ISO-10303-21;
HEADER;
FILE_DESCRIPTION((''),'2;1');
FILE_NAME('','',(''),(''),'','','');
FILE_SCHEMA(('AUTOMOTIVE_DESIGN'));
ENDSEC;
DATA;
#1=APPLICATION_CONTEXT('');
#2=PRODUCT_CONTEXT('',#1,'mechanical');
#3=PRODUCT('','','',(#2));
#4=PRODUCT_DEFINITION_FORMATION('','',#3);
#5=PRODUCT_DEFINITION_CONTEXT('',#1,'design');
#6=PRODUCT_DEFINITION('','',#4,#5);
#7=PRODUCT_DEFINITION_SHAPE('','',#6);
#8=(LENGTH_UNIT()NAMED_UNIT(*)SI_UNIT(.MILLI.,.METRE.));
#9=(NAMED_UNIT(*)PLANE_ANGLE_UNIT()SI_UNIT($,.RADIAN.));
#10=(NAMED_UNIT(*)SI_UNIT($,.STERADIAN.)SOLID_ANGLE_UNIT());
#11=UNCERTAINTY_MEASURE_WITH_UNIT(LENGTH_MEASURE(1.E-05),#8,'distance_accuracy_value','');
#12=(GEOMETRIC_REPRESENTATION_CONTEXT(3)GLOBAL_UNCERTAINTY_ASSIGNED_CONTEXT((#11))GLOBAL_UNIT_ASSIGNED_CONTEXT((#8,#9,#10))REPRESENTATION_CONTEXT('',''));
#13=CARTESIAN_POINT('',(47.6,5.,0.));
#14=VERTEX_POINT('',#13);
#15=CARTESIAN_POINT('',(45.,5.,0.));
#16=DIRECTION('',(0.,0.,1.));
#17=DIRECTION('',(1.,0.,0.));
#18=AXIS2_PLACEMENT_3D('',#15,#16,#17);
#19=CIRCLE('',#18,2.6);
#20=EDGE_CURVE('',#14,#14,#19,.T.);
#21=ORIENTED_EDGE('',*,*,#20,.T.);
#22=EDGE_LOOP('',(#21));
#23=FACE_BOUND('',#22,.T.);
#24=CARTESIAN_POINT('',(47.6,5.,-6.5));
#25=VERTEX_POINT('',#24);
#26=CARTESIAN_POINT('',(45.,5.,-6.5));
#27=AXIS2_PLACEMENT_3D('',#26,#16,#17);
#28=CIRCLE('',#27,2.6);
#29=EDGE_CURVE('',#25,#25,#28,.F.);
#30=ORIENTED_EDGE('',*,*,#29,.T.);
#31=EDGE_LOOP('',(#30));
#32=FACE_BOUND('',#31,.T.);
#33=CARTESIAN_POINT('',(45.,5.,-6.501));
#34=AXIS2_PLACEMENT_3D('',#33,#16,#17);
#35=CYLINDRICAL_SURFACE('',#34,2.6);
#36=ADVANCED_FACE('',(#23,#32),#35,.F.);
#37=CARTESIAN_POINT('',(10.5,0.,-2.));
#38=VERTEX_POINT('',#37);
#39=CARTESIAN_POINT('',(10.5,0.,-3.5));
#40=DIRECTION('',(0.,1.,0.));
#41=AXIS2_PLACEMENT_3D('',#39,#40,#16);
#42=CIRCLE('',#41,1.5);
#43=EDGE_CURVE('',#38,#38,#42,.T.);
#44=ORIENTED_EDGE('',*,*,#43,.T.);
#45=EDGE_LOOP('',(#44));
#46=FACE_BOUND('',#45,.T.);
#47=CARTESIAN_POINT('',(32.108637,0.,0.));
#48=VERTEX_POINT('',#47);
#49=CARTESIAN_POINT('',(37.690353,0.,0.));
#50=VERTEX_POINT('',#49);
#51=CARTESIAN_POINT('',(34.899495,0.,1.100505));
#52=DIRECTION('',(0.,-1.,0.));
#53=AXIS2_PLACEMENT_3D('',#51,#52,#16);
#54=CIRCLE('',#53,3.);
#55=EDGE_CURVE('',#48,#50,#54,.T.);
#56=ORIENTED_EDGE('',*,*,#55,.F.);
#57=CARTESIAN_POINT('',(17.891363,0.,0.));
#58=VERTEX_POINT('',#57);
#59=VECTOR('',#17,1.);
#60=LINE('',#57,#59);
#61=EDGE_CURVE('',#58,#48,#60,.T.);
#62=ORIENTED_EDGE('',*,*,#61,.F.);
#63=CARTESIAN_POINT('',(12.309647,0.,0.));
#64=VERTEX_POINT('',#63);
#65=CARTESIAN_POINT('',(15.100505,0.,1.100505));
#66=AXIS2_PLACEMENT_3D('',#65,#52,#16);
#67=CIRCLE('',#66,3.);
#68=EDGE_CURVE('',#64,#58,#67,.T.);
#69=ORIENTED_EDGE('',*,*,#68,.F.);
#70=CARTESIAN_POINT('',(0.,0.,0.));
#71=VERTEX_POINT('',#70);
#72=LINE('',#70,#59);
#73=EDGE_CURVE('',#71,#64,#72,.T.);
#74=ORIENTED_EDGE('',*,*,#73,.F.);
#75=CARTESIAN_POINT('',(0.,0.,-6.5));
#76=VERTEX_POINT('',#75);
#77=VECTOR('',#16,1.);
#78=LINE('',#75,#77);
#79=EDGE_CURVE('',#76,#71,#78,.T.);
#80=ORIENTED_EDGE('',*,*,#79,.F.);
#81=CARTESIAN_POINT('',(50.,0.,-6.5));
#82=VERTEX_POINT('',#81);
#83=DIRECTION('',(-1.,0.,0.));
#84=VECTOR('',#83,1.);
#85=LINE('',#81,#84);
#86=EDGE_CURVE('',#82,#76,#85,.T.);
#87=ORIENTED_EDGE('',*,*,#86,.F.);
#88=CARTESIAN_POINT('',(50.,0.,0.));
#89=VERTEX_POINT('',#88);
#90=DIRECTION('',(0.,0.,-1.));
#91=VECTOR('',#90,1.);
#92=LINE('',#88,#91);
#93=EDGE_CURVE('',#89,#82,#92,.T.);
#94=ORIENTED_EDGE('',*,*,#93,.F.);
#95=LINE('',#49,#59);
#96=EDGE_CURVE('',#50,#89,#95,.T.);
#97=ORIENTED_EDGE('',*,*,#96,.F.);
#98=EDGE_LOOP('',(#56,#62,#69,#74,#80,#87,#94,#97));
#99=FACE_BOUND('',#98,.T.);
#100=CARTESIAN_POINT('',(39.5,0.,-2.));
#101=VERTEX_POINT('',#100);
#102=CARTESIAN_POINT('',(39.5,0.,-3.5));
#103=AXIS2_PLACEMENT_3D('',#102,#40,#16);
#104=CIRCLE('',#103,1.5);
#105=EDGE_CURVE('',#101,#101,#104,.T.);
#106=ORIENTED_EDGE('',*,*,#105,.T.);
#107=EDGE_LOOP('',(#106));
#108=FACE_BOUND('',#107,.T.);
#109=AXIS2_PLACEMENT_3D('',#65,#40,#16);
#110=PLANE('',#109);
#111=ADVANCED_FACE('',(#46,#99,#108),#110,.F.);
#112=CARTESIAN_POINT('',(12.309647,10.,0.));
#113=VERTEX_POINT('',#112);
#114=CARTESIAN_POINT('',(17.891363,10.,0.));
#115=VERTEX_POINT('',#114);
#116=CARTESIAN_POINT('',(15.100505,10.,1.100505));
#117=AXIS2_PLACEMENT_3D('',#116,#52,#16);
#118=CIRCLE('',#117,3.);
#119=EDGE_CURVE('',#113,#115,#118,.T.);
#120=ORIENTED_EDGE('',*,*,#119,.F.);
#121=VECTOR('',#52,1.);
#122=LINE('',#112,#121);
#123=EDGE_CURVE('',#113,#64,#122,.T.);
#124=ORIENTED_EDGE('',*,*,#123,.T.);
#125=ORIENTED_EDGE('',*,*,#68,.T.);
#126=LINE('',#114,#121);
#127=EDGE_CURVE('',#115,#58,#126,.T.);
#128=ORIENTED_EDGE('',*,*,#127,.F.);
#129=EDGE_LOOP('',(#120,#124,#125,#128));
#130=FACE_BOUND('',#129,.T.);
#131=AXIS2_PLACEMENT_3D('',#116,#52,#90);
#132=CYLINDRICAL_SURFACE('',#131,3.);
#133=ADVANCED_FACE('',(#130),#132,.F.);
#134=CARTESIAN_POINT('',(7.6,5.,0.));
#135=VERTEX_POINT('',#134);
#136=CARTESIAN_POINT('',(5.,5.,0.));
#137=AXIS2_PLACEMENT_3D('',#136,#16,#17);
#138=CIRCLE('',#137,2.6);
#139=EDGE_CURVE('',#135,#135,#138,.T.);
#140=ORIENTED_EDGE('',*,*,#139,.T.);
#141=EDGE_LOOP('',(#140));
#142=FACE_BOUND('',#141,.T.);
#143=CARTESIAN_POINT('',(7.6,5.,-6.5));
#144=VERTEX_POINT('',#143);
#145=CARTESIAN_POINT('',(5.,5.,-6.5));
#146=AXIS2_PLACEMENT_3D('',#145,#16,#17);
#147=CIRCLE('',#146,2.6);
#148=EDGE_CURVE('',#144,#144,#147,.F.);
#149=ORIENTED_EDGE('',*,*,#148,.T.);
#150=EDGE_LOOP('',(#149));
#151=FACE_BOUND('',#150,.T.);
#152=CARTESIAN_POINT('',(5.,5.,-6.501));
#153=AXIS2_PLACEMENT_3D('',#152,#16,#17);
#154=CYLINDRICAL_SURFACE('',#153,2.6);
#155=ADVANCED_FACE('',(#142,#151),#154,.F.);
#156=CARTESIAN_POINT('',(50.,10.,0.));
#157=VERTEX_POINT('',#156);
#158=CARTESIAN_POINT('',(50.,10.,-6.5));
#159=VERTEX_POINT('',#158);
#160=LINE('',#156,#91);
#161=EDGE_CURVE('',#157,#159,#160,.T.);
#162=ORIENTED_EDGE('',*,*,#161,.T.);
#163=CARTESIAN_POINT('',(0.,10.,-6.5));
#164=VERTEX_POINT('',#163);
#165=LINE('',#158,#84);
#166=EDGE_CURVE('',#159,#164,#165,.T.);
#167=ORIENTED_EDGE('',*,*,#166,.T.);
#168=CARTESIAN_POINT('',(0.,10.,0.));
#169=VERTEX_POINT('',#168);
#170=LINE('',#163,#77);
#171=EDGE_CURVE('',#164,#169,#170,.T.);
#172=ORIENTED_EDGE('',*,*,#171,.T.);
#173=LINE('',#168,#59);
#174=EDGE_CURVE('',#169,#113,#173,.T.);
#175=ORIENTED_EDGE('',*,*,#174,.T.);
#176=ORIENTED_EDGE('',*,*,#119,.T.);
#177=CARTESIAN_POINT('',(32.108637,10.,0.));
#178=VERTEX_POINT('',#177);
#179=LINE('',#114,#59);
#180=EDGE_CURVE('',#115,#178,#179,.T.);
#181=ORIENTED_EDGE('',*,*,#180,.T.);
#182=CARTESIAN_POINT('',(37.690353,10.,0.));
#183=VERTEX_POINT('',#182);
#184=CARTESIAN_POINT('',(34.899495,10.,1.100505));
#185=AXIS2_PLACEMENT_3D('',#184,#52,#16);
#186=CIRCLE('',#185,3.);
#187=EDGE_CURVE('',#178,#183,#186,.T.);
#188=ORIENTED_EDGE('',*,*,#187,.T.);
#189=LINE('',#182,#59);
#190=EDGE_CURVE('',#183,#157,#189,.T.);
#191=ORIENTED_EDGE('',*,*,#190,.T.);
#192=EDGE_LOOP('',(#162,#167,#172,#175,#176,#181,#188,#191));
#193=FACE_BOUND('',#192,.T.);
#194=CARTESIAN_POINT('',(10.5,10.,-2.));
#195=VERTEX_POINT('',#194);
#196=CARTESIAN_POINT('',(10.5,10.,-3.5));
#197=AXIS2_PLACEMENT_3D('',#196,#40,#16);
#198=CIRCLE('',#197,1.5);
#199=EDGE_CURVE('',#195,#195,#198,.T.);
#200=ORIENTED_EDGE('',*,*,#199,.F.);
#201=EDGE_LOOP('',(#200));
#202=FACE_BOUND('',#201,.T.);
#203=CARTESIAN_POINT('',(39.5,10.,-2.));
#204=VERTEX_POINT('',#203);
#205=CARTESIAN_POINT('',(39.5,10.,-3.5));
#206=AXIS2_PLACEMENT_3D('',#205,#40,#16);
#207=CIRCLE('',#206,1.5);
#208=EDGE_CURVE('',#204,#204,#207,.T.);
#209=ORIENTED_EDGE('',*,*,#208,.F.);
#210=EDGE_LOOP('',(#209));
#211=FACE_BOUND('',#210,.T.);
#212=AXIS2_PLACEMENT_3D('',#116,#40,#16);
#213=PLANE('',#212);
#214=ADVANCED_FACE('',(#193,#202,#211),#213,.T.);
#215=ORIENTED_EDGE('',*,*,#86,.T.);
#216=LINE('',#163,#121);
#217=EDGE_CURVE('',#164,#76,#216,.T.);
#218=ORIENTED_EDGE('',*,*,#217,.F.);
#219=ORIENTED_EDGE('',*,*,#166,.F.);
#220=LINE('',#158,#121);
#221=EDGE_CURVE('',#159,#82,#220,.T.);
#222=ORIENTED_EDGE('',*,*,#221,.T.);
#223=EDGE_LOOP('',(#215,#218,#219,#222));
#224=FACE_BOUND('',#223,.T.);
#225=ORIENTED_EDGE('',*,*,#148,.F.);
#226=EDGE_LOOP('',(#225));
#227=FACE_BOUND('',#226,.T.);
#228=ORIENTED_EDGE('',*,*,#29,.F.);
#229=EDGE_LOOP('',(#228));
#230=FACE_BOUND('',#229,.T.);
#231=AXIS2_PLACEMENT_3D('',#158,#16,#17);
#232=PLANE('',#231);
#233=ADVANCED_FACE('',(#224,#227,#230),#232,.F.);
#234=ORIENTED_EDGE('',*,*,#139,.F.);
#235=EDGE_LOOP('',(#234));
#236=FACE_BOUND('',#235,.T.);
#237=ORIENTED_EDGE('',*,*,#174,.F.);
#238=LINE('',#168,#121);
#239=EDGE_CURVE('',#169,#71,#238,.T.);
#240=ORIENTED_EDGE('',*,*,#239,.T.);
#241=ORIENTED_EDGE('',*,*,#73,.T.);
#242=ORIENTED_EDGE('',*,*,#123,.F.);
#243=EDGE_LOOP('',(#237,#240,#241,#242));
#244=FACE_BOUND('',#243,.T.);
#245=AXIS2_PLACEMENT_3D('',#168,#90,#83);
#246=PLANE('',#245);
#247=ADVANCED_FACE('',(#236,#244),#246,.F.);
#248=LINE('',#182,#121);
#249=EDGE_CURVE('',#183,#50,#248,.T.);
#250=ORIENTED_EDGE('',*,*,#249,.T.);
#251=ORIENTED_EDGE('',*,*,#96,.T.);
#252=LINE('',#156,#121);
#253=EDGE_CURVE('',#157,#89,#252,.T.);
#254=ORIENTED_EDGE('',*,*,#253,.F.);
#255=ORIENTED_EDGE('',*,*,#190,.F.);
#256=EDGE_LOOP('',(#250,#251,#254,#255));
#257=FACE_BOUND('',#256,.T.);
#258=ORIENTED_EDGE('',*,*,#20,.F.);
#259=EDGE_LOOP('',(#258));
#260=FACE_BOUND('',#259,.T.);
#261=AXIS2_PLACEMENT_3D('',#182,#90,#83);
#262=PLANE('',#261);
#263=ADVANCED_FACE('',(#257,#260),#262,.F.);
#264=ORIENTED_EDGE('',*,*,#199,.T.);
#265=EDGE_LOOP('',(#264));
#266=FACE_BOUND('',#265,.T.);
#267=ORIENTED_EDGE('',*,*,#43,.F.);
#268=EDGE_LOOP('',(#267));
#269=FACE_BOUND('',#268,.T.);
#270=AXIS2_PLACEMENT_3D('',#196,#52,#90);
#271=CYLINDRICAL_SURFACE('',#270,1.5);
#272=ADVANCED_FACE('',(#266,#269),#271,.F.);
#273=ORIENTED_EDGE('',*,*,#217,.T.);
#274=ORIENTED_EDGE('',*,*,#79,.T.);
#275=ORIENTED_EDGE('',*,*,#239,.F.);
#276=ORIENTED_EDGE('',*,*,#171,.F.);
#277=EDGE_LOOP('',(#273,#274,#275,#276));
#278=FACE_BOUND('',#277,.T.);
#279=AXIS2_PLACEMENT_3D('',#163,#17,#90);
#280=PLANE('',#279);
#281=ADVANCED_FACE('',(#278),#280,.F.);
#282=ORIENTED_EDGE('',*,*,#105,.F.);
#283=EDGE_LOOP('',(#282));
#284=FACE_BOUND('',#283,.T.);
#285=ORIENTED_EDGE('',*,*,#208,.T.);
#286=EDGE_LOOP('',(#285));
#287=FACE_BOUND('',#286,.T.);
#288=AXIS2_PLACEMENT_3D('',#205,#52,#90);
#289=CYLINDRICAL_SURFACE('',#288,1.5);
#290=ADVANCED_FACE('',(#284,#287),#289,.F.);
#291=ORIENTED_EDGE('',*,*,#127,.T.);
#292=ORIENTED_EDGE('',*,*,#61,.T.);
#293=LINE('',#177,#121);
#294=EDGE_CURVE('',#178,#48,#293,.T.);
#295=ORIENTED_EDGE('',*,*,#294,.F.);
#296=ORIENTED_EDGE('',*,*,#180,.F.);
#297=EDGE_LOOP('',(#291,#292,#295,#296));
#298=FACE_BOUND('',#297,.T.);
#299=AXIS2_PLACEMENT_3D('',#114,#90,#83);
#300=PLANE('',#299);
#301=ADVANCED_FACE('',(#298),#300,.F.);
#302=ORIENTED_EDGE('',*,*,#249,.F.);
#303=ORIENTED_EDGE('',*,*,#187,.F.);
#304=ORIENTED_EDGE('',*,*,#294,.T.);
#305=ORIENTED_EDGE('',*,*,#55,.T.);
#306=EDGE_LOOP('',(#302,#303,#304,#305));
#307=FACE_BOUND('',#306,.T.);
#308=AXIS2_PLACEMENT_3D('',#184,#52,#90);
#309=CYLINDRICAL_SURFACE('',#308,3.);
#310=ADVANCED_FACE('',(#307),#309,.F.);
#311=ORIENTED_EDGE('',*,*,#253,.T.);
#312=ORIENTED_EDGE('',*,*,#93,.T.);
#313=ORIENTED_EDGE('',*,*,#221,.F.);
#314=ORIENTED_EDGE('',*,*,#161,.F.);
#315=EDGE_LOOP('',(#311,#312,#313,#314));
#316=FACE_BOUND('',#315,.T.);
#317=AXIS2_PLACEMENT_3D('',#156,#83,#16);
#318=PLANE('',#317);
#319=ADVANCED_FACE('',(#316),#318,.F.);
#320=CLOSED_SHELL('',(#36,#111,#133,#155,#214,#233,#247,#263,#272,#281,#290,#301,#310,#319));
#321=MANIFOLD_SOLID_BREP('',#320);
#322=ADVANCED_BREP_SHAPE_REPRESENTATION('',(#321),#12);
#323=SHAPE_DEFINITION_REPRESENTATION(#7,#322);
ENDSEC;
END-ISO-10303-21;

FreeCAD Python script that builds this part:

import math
import FreeCAD as App
import Part
import Sketcher

V = App.Vector
Q = App.Units.Quantity

doc = App.newDocument("Part")
body = doc.addObject("PartDesign::Body", "Body")

# Sketch on XZ plane
sketch1 = doc.addObject("Sketcher::SketchObject", "Sketch")
body.addObject(sketch1)
sketch1.AttachmentSupport = (doc.XZ_Plane, [""])
sketch1.MapMode = "FlatFace"
sketch1.addGeometry([
    Part.LineSegment(V(0, 0, 0), V(12.3, 0, 0)),  # 0
    Part.ArcOfCircle(Part.Circle(V(15.1, 1.1, 0), V(0, 0, 1), 3), math.radians(-158), math.radians(-22)),  # 1
    Part.LineSegment(V(17.9, 0, 0), V(32.1, 0, 0)),  # 2
    Part.ArcOfCircle(Part.Circle(V(34.9, 1.1, 0), V(0, 0, 1), 3), math.radians(-158), math.radians(-22)),  # 3
    Part.LineSegment(V(37.7, 0, 0), V(50, 0, 0)),  # 4
    Part.LineSegment(V(50, 0, 0), V(50, -6.5, 0)),  # 5
    Part.LineSegment(V(50, -6.5, 0), V(0, -6.5, 0)),  # 6
    Part.LineSegment(V(0, -6.5, 0), V(0, 0, 0)),  # 7
    Part.Circle(V(10.5, -3.5, 0), V(0, 0, 1), 1.5),  # 8
    Part.Circle(V(39.5, -3.5, 0), V(0, 0, 1), 1.5),  # 9
], False)
sketch1.addConstraint([
    Sketcher.Constraint("Coincident", 0, 2, 1, 1),
    Sketcher.Constraint("Coincident", 1, 2, 2, 1),
    Sketcher.Constraint("Coincident", 2, 2, 3, 1),
    Sketcher.Constraint("Coincident", 3, 2, 4, 1),
    Sketcher.Constraint("Coincident", 4, 2, 5, 1),
    Sketcher.Constraint("Coincident", 5, 2, 6, 1),
    Sketcher.Constraint("Coincident", 6, 2, 7, 1),
    Sketcher.Constraint("Coincident", 7, 2, 0, 1),
    Sketcher.Constraint("Horizontal", 0),
    Sketcher.Constraint("Horizontal", 2),
    Sketcher.Constraint("Horizontal", 4),
    Sketcher.Constraint("Vertical", 5),
    Sketcher.Constraint("Horizontal", 6),
    Sketcher.Constraint("Vertical", 7),
    Sketcher.Constraint("Coincident", 7, 2, -1, 1),
    Sketcher.Constraint("Equal", 1, 3),
    Sketcher.Constraint("Equal", 8, 9),
    Sketcher.Constraint("PointOnObject", 1, 2, -1),
    Sketcher.Constraint("PointOnObject", 3, 2, -1),
    Sketcher.Constraint("Horizontal", 1, 3, 3, 3),
    Sketcher.Constraint("Horizontal", 8, 3, 9, 3),
    Sketcher.Constraint("Equal", 0, 4),
    Sketcher.Constraint("Diameter", 8, Q("3 mm")),
    Sketcher.Constraint("Radius", 1, Q("3 mm")),
    Sketcher.Constraint("DistanceX", 6, 2, 6, 1, Q("50 mm")),
    Sketcher.Constraint("DistanceY", 5, 2, 5, 1, Q("6.5 mm")),
    Sketcher.Constraint("DistanceX", 8, 3, 9, 3, Q("29 mm")),
    Sketcher.Constraint("DistanceY", 5, 2, 9, 3, Q("3 mm")),
    Sketcher.Constraint("DistanceX", -1, 1, 8, 3, Q("10.5 mm")),
    Sketcher.Constraint("DistanceX", 0, 1, 0, 2, Q("12.309647 mm")),
    Sketcher.Constraint("DistanceX", 2, 1, 2, 2, Q("14.217274 mm")),
])
pad1 = doc.addObject("PartDesign::Pad", "Pad")
body.addObject(pad1)
pad1.Profile = sketch1
pad1.Length = 10
pad1.Reversed = True

# Sketch on XY plane
sketch2 = doc.addObject("Sketcher::SketchObject", "Sketch001")
body.addObject(sketch2)
sketch2.AttachmentSupport = (doc.XY_Plane, [""])
sketch2.MapMode = "FlatFace"
sketch2.addGeometry(Part.Circle(V(5, 5, 0), V(0, 0, 1), 2.6), False)
sketch2.addConstraint([
    Sketcher.Constraint("Diameter", 0, Q("5.2 mm")),
    Sketcher.Constraint("DistanceX", -1, 1, 0, 3, Q("5 mm")),
    Sketcher.Constraint("DistanceY", -1, 1, 0, 3, Q("5 mm")),
])
pocket1 = doc.addObject("PartDesign::Pocket", "Pocket")
body.addObject(pocket1)
pocket1.Profile = sketch2
pocket1.Type = "UpToFirst"

# Sketch on XY plane
sketch3 = doc.addObject("Sketcher::SketchObject", "Sketch002")
body.addObject(sketch3)
sketch3.AttachmentSupport = (doc.XY_Plane, [""])
sketch3.MapMode = "FlatFace"
sketch3.addGeometry(Part.Circle(V(45, 5, 0), V(0, 0, 1), 2.6), False)
sketch3.addConstraint([
    Sketcher.Constraint("Diameter", 0, Q("5.2 mm")),
    Sketcher.Constraint("DistanceX", -1, 1, 0, 3, Q("45 mm")),
    Sketcher.Constraint("DistanceY", -1, 1, 0, 3, Q("5 mm")),
])
pocket2 = doc.addObject("PartDesign::Pocket", "Pocket001")
body.addObject(pocket2)
pocket2.Profile = sketch3
pocket2.Type = "UpToFirst"

doc.recompute()
